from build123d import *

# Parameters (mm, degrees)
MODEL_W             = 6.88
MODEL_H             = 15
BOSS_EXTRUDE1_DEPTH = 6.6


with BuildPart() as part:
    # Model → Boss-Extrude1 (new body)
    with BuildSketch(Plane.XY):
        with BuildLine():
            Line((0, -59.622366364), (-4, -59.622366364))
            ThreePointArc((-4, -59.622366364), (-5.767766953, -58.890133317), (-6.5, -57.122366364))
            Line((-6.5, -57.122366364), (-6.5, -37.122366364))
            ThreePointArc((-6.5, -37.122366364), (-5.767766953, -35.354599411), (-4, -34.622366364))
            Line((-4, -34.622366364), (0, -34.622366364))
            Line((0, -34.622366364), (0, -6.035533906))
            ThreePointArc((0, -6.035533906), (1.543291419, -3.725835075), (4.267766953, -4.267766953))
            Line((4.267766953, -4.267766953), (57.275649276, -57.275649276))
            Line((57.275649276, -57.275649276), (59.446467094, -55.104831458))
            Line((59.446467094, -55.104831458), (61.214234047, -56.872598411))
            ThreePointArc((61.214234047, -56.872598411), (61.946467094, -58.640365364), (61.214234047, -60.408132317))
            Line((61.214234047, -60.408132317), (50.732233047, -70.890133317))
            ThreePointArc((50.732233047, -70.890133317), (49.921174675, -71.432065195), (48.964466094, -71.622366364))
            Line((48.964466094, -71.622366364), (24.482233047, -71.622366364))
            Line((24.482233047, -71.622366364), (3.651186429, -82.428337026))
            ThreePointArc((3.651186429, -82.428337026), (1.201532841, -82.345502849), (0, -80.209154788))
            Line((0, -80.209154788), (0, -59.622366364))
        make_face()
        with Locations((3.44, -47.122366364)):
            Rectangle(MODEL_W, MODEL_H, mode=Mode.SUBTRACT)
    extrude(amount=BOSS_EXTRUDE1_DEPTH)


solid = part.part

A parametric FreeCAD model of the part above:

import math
import FreeCAD as App
import Part
import Sketcher
from FreeCAD import Vector


def add_polygon(sketch, points):
    """Adds a closed chain of lines whose ends are joined by coincident constraints."""
    first, n = sketch.GeometryCount, len(points)
    for a, b in zip(points, points[1:] + points[:1]):
        sketch.addGeometry(Part.LineSegment(App.Vector(*a, 0), App.Vector(*b, 0)), False)
    for i in range(n):
        sketch.addConstraint(Sketcher.Constraint("Coincident", first + i, 2, first + (i + 1) % n, 1))

doc = App.newDocument("Part")
body = doc.addObject("PartDesign::Body", "Body")

sketch1 = body.newObject("Sketcher::SketchObject", "Sketch")
sketch1.AttachmentSupport = (doc.getObject("XY_Plane"), [""])
sketch1.MapMode = "FlatFace"
sketch1.addGeometry(Part.LineSegment(Vector(-4, -59.622366, 0), Vector(0, -59.622366, 0)), False)
sketch1.addGeometry(Part.LineSegment(Vector(0, -59.622366, 0), Vector(0, -80.209155, 0)), False)
sketch1.addGeometry(Part.ArcOfCircle(Part.Circle(Vector(2.5, -80.209155, 0), Vector(0, 0, 1), 2.5), math.radians(180), math.radians(297.417735)), False)
sketch1.addGeometry(Part.LineSegment(Vector(3.651186, -82.428337, 0), Vector(24.482233, -71.622366, 0)), False)
sketch1.addGeometry(Part.LineSegment(Vector(24.482233, -71.622366, 0), Vector(48.964466, -71.622366, 0)), False)
sketch1.addGeometry(Part.ArcOfCircle(Part.Circle(Vector(48.964466, -69.122366, 0), Vector(0, 0, 1), 2.5), math.radians(-90), math.radians(-45)), False)
sketch1.addGeometry(Part.LineSegment(Vector(50.732233, -70.890133, 0), Vector(61.214234, -60.408132, 0)), False)
sketch1.addGeometry(Part.ArcOfCircle(Part.Circle(Vector(59.446467, -58.640365, 0), Vector(0, 0, 1), 2.5), math.radians(-45), math.radians(45)), False)
sketch1.addGeometry(Part.LineSegment(Vector(61.214234, -56.872598, 0), Vector(59.446467, -55.104831, 0)), False)
sketch1.addGeometry(Part.LineSegment(Vector(59.446467, -55.104831, 0), Vector(57.275649, -57.275649, 0)), False)
sketch1.addGeometry(Part.LineSegment(Vector(57.275649, -57.275649, 0), Vector(4.267767, -4.267767, 0)), False)
sketch1.addGeometry(Part.ArcOfCircle(Part.Circle(Vector(2.5, -6.035534, 0), Vector(0, 0, 1), 2.5), math.radians(45), math.radians(180)), False)
sketch1.addGeometry(Part.LineSegment(Vector(0, -6.035534, 0), Vector(0, -34.622366, 0)), False)
sketch1.addGeometry(Part.LineSegment(Vector(0, -34.622366, 0), Vector(-4, -34.622366, 0)), False)
sketch1.addGeometry(Part.ArcOfCircle(Part.Circle(Vector(-4, -37.122366, 0), Vector(0, 0, 1), 2.5), math.radians(90), math.radians(180)), False)
sketch1.addGeometry(Part.LineSegment(Vector(-6.5, -37.122366, 0), Vector(-6.5, -57.122366, 0)), False)
sketch1.addGeometry(Part.ArcOfCircle(Part.Circle(Vector(-4, -57.122366, 0), Vector(0, 0, 1), 2.5), math.radians(180), math.radians(270)), False)
add_polygon(sketch1, [(0, -54.622366), (0, -39.622366), (6.88, -39.622366), (6.88, -54.622366)])
sketch1.addConstraint(Sketcher.Constraint("Coincident", 0, 2, 1, 1))
sketch1.addConstraint(Sketcher.Constraint("Tangent", 1, 2, 2, 1))
sketch1.addConstraint(Sketcher.Constraint("Tangent", 2, 2, 3, 1))
sketch1.addConstraint(Sketcher.Constraint("Coincident", 3, 2, 4, 1))
sketch1.addConstraint(Sketcher.Constraint("Tangent", 4, 2, 5, 1))
sketch1.addConstraint(Sketcher.Constraint("Tangent", 5, 2, 6, 1))
sketch1.addConstraint(Sketcher.Constraint("Tangent", 6, 2, 7, 1))
sketch1.addConstraint(Sketcher.Constraint("Tangent", 7, 2, 8, 1))
sketch1.addConstraint(Sketcher.Constraint("Coincident", 8, 2, 9, 1))
sketch1.addConstraint(Sketcher.Constraint("Coincident", 9, 2, 10, 1))
sketch1.addConstraint(Sketcher.Constraint("Tangent", 10, 2, 11, 1))
sketch1.addConstraint(Sketcher.Constraint("Tangent", 11, 2, 12, 1))
sketch1.addConstraint(Sketcher.Constraint("Coincident", 12, 2, 13, 1))
sketch1.addConstraint(Sketcher.Constraint("Tangent", 13, 2, 14, 1))
sketch1.addConstraint(Sketcher.Constraint("Tangent", 14, 2, 15, 1))
sketch1.addConstraint(Sketcher.Constraint("Tangent", 15, 2, 16, 1))
sketch1.addConstraint(Sketcher.Constraint("Tangent", 16, 2, 0, 1))
sketch1.addConstraint(Sketcher.Constraint("Horizontal", 0))
sketch1.addConstraint(Sketcher.Constraint("Vertical", 1))
sketch1.addConstraint(Sketcher.Constraint("Horizontal", 4))
sketch1.addConstraint(Sketcher.Constraint("Vertical", 12))
sketch1.addConstraint(Sketcher.Constraint("Horizontal", 13))
sketch1.addConstraint(Sketcher.Constraint("Vertical", 15))
sketch1.addConstraint(Sketcher.Constraint("Vertical", 17))
sketch1.addConstraint(Sketcher.Constraint("Horizontal", 18))
sketch1.addConstraint(Sketcher.Constraint("Vertical", 19))
sketch1.addConstraint(Sketcher.Constraint("Horizontal", 20))
sketch1.addConstraint(Sketcher.Constraint("Equal", 2, 5))
sketch1.addConstraint(Sketcher.Constraint("Equal", 5, 7))
sketch1.addConstraint(Sketcher.Constraint("Equal", 7, 11))
sketch1.addConstraint(Sketcher.Constraint("Equal", 11, 14))
sketch1.addConstraint(Sketcher.Constraint("Equal", 14, 16))
sketch1.addConstraint(Sketcher.Constraint("PointOnObject", 0, 2, -2))
sketch1.addConstraint(Sketcher.Constraint("PointOnObject", 11, 2, -2))
sketch1.addConstraint(Sketcher.Constraint("PointOnObject", 17, 2, -2))
sketch1.addConstraint(Sketcher.Constraint("Perpendicular", 6, 8))
sketch1.addConstraint(Sketcher.Constraint("Perpendicular", 8, 9))
sketch1.addConstraint(Sketcher.Constraint("Perpendicular", 9, 10))
sketch1.addConstraint(Sketcher.Constraint("Vertical", 6, 2, 7, 2))
sketch1.addConstraint(Sketcher.Constraint("Vertical", 7, 3, 8, 2))
sketch1.addConstraint(Sketcher.Constraint("Radius", 2, 2.5))
sketch1.addConstraint(Sketcher.Constraint("DistanceX", 0, 1, 0, 2, 4.0))
sketch1.addConstraint(Sketcher.Constraint("DistanceY", 15, 2, 15, 1, 20.0))
sketch1.addConstraint(Sketcher.Constraint("DistanceY", 17, 1, 17, 2, 15.0))
sketch1.addConstraint(Sketcher.Constraint("DistanceY", 5, 3, 14, 3, 32.0))
sketch1.addConstraint(Sketcher.Constraint("DistanceY", 17, 2, 12, 2, 5.0))
sketch1.addConstraint(Sketcher.Constraint("DistanceX", 18, 1, 18, 2, 6.88))
sketch1.addConstraint(Sketcher.Constraint("Distance", 9, 3.07))
sketch1.addConstraint(Sketcher.Constraint("DistanceX", 3, 2, 5, 2, 26.25))
sketch1.addConstraint(Sketcher.Constraint("DistanceX", 5, 3, 7, 3, 10.482001))
sketch1.addConstraint(Sketcher.Constraint("DistanceY", 1, 2, 1, 1, 20.586788))
sketch1.addConstraint(Sketcher.Constraint("DistanceY", 7, 2, -1, 1, 56.872598))
sketch1.addConstraint(Sketcher.Constraint("DistanceY", 14, 3, 10, 2, 32.854599))
pad1 = body.newObject("PartDesign::Pad", "Pad")
pad1.Profile = sketch1
pad1.Length = 6.6

doc.recompute()
